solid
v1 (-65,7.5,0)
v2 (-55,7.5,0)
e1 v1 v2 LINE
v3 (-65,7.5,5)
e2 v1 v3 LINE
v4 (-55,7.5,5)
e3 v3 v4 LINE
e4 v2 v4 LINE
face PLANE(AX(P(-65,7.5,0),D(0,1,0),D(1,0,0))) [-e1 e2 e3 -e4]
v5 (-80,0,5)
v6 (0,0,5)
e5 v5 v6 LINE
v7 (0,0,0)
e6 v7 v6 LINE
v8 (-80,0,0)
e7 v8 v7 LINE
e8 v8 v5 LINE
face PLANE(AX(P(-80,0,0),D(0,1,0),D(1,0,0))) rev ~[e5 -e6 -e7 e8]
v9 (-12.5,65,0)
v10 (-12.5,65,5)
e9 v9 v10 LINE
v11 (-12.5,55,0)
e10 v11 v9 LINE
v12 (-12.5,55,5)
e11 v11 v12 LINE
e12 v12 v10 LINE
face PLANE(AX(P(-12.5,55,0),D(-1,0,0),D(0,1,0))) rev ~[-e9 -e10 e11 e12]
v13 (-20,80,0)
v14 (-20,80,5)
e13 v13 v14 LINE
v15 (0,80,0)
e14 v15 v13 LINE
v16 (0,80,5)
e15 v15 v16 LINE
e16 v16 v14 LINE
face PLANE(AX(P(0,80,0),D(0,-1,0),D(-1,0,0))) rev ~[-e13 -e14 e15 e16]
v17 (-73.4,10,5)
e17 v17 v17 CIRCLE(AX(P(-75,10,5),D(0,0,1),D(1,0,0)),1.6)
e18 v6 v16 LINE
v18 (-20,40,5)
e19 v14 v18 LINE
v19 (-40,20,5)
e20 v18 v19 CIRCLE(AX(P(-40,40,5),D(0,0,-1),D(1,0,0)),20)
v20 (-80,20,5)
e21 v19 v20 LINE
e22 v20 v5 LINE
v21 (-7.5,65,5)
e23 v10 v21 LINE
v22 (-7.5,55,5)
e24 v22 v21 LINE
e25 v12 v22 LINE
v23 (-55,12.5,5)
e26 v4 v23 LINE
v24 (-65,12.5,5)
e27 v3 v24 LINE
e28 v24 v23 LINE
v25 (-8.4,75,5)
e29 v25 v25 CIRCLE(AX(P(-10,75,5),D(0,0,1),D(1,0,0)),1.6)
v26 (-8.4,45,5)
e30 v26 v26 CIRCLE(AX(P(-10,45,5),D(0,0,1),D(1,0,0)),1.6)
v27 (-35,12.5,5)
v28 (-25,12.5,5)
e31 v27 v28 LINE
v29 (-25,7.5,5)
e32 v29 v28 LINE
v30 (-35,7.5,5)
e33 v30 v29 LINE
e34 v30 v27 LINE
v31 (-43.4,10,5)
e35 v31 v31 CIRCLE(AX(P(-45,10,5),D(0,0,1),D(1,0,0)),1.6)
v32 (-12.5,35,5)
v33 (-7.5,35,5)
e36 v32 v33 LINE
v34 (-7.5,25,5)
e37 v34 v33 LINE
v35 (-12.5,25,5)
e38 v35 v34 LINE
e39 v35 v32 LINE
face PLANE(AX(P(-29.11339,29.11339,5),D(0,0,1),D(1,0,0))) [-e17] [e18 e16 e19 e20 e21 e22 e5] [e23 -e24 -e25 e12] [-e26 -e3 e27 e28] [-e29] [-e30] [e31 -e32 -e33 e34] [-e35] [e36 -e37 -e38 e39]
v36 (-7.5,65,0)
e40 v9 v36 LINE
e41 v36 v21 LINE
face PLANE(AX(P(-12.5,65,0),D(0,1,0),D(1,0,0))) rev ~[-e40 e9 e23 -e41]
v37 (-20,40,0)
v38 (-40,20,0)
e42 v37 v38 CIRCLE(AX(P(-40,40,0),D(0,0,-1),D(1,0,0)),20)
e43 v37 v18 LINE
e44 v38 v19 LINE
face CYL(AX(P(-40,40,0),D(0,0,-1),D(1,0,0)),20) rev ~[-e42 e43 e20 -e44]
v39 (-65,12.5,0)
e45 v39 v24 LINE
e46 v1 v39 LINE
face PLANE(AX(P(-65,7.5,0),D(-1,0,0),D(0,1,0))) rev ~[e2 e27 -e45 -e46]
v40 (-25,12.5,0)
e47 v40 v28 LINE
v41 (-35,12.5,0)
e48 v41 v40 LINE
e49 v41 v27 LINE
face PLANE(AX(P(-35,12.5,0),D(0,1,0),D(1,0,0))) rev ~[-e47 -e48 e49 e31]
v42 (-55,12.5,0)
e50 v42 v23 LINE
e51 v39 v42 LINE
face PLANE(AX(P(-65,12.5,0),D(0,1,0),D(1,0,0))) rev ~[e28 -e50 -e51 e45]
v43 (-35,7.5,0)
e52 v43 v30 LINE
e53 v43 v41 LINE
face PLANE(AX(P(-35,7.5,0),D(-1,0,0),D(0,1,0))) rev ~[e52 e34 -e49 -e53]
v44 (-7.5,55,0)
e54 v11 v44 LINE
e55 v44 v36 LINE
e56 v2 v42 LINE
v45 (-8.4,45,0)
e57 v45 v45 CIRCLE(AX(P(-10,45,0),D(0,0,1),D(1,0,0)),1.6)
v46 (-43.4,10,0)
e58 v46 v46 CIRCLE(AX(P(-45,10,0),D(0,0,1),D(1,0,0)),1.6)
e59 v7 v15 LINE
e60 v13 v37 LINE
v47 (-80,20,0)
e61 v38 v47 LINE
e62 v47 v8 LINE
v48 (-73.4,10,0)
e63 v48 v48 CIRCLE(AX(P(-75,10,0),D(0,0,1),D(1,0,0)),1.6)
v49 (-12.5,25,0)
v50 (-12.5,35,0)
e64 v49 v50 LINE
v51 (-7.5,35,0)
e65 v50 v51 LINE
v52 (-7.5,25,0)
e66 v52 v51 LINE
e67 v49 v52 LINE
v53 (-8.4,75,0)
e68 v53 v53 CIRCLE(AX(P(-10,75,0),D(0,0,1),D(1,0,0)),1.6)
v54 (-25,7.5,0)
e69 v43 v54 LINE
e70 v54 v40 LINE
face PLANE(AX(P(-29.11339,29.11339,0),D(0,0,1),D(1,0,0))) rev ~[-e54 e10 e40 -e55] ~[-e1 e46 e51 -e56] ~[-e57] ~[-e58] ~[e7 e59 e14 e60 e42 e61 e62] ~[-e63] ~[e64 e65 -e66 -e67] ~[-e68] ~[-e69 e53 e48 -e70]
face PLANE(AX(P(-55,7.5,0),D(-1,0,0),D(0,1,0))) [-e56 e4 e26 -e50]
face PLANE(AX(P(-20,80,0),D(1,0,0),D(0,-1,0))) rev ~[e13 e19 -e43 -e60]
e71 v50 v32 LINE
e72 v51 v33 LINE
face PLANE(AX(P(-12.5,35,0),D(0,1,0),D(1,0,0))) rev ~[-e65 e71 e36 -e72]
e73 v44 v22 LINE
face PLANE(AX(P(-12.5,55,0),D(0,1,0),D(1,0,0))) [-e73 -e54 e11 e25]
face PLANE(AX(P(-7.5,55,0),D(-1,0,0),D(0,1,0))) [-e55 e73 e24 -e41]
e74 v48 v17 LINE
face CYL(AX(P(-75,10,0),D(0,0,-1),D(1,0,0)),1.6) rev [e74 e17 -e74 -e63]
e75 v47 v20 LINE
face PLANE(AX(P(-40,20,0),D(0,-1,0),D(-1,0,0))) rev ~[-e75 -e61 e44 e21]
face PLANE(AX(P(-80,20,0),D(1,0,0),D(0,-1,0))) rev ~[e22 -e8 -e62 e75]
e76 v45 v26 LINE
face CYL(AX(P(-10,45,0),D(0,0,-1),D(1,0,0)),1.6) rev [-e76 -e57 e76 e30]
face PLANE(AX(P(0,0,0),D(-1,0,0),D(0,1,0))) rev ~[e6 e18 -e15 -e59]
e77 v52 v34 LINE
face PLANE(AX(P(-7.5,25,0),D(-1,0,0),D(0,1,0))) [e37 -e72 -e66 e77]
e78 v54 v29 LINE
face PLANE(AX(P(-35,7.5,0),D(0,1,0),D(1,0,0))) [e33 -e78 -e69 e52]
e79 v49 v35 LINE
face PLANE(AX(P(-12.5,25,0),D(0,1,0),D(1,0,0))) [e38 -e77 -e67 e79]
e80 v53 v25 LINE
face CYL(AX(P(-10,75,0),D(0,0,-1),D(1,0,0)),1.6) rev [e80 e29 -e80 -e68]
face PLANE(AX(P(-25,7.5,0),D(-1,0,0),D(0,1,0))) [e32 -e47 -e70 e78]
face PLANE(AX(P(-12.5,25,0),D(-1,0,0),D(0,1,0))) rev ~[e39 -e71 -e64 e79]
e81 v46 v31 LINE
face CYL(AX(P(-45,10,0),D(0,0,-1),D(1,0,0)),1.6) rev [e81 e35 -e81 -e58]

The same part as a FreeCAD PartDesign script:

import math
import FreeCAD as App
import Part
import Sketcher
Q = App.Units.Quantity

doc = App.newDocument("Part")
body = doc.addObject("PartDesign::Body", "Body")

sketch1 = body.newObject("Sketcher::SketchObject", "Sketch")
sketch1.AttachmentSupport = (doc.getObject("XY_Plane"), [""])
sketch1.MapMode = "FlatFace"
sketch1.addGeometry(Part.LineSegment(App.Vector(-80, 0, 0), App.Vector(0, 0, 0)), False)
sketch1.addGeometry(Part.LineSegment(App.Vector(0, 0, 0), App.Vector(0, 80, 0)), False)
sketch1.addGeometry(Part.LineSegment(App.Vector(0, 80, 0), App.Vector(-20, 80, 0)), False)
sketch1.addGeometry(Part.LineSegment(App.Vector(-20, 80, 0), App.Vector(-20, 40, 0)), False)
sketch1.addGeometry(Part.ArcOfCircle(Part.Circle(App.Vector(-40, 40, 0), App.Vector(0, 0, 1), 20), math.radians(-90), math.radians(0)), False)
sketch1.addGeometry(Part.LineSegment(App.Vector(-40, 20, 0), App.Vector(-80, 20, 0)), False)
sketch1.addGeometry(Part.LineSegment(App.Vector(-80, 20, 0), App.Vector(-80, 0, 0)), False)
sketch1.addGeometry(Part.Circle(App.Vector(-75, 10, 0), App.Vector(0, 0, 1), 1.6), False)
sketch1.addGeometry(Part.LineSegment(App.Vector(-55, 7.5, 0), App.Vector(-65, 7.5, 0)), False)
sketch1.addGeometry(Part.LineSegment(App.Vector(-65, 7.5, 0), App.Vector(-65, 12.5, 0)), False)
sketch1.addGeometry(Part.LineSegment(App.Vector(-65, 12.5, 0), App.Vector(-55, 12.5, 0)), False)
sketch1.addGeometry(Part.LineSegment(App.Vector(-55, 12.5, 0), App.Vector(-55, 7.5, 0)), False)
sketch1.addGeometry(Part.Circle(App.Vector(-45, 10, 0), App.Vector(0, 0, 1), 1.6), False)
sketch1.addGeometry(Part.LineSegment(App.Vector(-25, 7.5, 0), App.Vector(-35, 7.5, 0)), False)
sketch1.addGeometry(Part.LineSegment(App.Vector(-35, 7.5, 0), App.Vector(-35, 12.5, 0)), False)
sketch1.addGeometry(Part.LineSegment(App.Vector(-35, 12.5, 0), App.Vector(-25, 12.5, 0)), False)
sketch1.addGeometry(Part.LineSegment(App.Vector(-25, 12.5, 0), App.Vector(-25, 7.5, 0)), False)
sketch1.addGeometry(Part.LineSegment(App.Vector(-7.5, 25, 0), App.Vector(-12.5, 25, 0)), False)
sketch1.addGeometry(Part.LineSegment(App.Vector(-12.5, 25, 0), App.Vector(-12.5, 35, 0)), False)
sketch1.addGeometry(Part.LineSegment(App.Vector(-12.5, 35, 0), App.Vector(-7.5, 35, 0)), False)
sketch1.addGeometry(Part.LineSegment(App.Vector(-7.5, 35, 0), App.Vector(-7.5, 25, 0)), False)
sketch1.addGeometry(Part.Circle(App.Vector(-10, 45, 0), App.Vector(0, 0, 1), 1.6), False)
sketch1.addGeometry(Part.LineSegment(App.Vector(-7.5, 55, 0), App.Vector(-12.5, 55, 0)), False)
sketch1.addGeometry(Part.LineSegment(App.Vector(-12.5, 55, 0), App.Vector(-12.5, 65, 0)), False)
sketch1.addGeometry(Part.LineSegment(App.Vector(-12.5, 65, 0), App.Vector(-7.5, 65, 0)), False)
sketch1.addGeometry(Part.LineSegment(App.Vector(-7.5, 65, 0), App.Vector(-7.5, 55, 0)), False)
sketch1.addGeometry(Part.Circle(App.Vector(-10, 75, 0), App.Vector(0, 0, 1), 1.6), False)
sketch1.addConstraint(Sketcher.Constraint("Coincident", 0, 2, 1, 1))
sketch1.addConstraint(Sketcher.Constraint("Coincident", 1, 2, 2, 1))
sketch1.addConstraint(Sketcher.Constraint("Coincident", 2, 2, 3, 1))
sketch1.addConstraint(Sketcher.Constraint("Tangent", 3, 2, 4, 2))
sketch1.addConstraint(Sketcher.Constraint("Tangent", 4, 1, 5, 1))
sketch1.addConstraint(Sketcher.Constraint("Coincident", 5, 2, 6, 1))
sketch1.addConstraint(Sketcher.Constraint("Coincident", 6, 2, 0, 1))
sketch1.addConstraint(Sketcher.Constraint("Coincident", 8, 2, 9, 1))
sketch1.addConstraint(Sketcher.Constraint("Coincident", 9, 2, 10, 1))
sketch1.addConstraint(Sketcher.Constraint("Coincident", 10, 2, 11, 1))
sketch1.addConstraint(Sketcher.Constraint("Coincident", 11, 2, 8, 1))
sketch1.addConstraint(Sketcher.Constraint("Coincident", 13, 2, 14, 1))
sketch1.addConstraint(Sketcher.Constraint("Coincident", 14, 2, 15, 1))
sketch1.addConstraint(Sketcher.Constraint("Coincident", 15, 2, 16, 1))
sketch1.addConstraint(Sketcher.Constraint("Coincident", 16, 2, 13, 1))
sketch1.addConstraint(Sketcher.Constraint("Coincident", 17, 2, 18, 1))
sketch1.addConstraint(Sketcher.Constraint("Coincident", 18, 2, 19, 1))
sketch1.addConstraint(Sketcher.Constraint("Coincident", 19, 2, 20, 1))
sketch1.addConstraint(Sketcher.Constraint("Coincident", 20, 2, 17, 1))
sketch1.addConstraint(Sketcher.Constraint("Coincident", 22, 2, 23, 1))
sketch1.addConstraint(Sketcher.Constraint("Coincident", 23, 2, 24, 1))
sketch1.addConstraint(Sketcher.Constraint("Coincident", 24, 2, 25, 1))
sketch1.addConstraint(Sketcher.Constraint("Coincident", 25, 2, 22, 1))
sketch1.addConstraint(Sketcher.Constraint("Horizontal", 0))
sketch1.addConstraint(Sketcher.Constraint("Vertical", 1))
sketch1.addConstraint(Sketcher.Constraint("Horizontal", 2))
sketch1.addConstraint(Sketcher.Constraint("Vertical", 3))
sketch1.addConstraint(Sketcher.Constraint("Horizontal", 5))
sketch1.addConstraint(Sketcher.Constraint("Vertical", 6))
sketch1.addConstraint(Sketcher.Constraint("Horizontal", 8))
sketch1.addConstraint(Sketcher.Constraint("Vertical", 9))
sketch1.addConstraint(Sketcher.Constraint("Horizontal", 10))
sketch1.addConstraint(Sketcher.Constraint("Vertical", 11))
sketch1.addConstraint(Sketcher.Constraint("Horizontal", 13))
sketch1.addConstraint(Sketcher.Constraint("Vertical", 14))
sketch1.addConstraint(Sketcher.Constraint("Horizontal", 15))
sketch1.addConstraint(Sketcher.Constraint("Vertical", 16))
sketch1.addConstraint(Sketcher.Constraint("Horizontal", 17))
sketch1.addConstraint(Sketcher.Constraint("Vertical", 18))
sketch1.addConstraint(Sketcher.Constraint("Horizontal", 19))
sketch1.addConstraint(Sketcher.Constraint("Vertical", 20))
sketch1.addConstraint(Sketcher.Constraint("Horizontal", 22))
sketch1.addConstraint(Sketcher.Constraint("Vertical", 23))
sketch1.addConstraint(Sketcher.Constraint("Horizontal", 24))
sketch1.addConstraint(Sketcher.Constraint("Vertical", 25))
sketch1.addConstraint(Sketcher.Constraint("Coincident", 0, 2, -1, 1))
sketch1.addConstraint(Sketcher.Constraint("Equal", 7, 12))
sketch1.addConstraint(Sketcher.Constraint("Equal", 12, 21))
sketch1.addConstraint(Sketcher.Constraint("Equal", 21, 26))
sketch1.addConstraint(Sketcher.Constraint("Horizontal", 7, 3, 12, 3))
sketch1.addConstraint(Sketcher.Constraint("Horizontal", 11, 2, 13, 2))
sketch1.addConstraint(Sketcher.Constraint("Horizontal", 10, 2, 14, 2))
sketch1.addConstraint(Sketcher.Constraint("Vertical", 21, 3, 26, 3))
sketch1.addConstraint(Sketcher.Constraint("Vertical", 18, 2, 22, 2))
sketch1.addConstraint(Sketcher.Constraint("Vertical", 20, 2, 24, 2))
sketch1.addConstraint(Sketcher.Constraint("Equal", 10, 13))
sketch1.addConstraint(Sketcher.Constraint("Equal", 0, 1))
sketch1.addConstraint(Sketcher.Constraint("Equal", 5, 3))
sketch1.addConstraint(Sketcher.Constraint("Equal", 24, 9))
sketch1.addConstraint(Sketcher.Constraint("Equal", 15, 18))
sketch1.addConstraint(Sketcher.Constraint("Equal", 20, 23))
sketch1.addConstraint(Sketcher.Constraint("Radius", 4, Q("20 mm")))
sketch1.addConstraint(Sketcher.Constraint("Diameter", 7, Q("3.2 mm")))
sketch1.addConstraint(Sketcher.Constraint("DistanceX", 0, 1, 0, 2, Q("80 mm")))
sketch1.addConstraint(Sketcher.Constraint("DistanceX", 2, 2, 2, 1, Q("20 mm")))
sketch1.addConstraint(Sketcher.Constraint("DistanceX", 8, 2, 8, 1, Q("10 mm")))
sketch1.addConstraint(Sketcher.Constraint("DistanceX", 17, 2, 17, 1, Q("5 mm")))
sketch1.addConstraint(Sketcher.Constraint("DistanceX", 7, 3, -1, 1, Q("75 mm")))
sketch1.addConstraint(Sketcher.Constraint("DistanceY", -1, 1, 7, 3, Q("10 mm")))
sketch1.addConstraint(Sketcher.Constraint("DistanceX", 12, 3, -1, 1, Q("45 mm")))
sketch1.addConstraint(Sketcher.Constraint("DistanceX", 21, 3, -1, 1, Q("10 mm")))
sketch1.addConstraint(Sketcher.Constraint("DistanceY", -1, 1, 21, 3, Q("45 mm")))
sketch1.addConstraint(Sketcher.Constraint("DistanceY", -1, 1, 26, 3, Q("75 mm")))
sketch1.addConstraint(Sketcher.Constraint("DistanceX", 8, 2, -1, 1, Q("65 mm")))
sketch1.addConstraint(Sketcher.Constraint("DistanceX", 13, 2, -1, 1, Q("35 mm")))
sketch1.addConstraint(Sketcher.Constraint("DistanceY", -1, 1, 17, 2, Q("25 mm")))
sketch1.addConstraint(Sketcher.Constraint("DistanceY", -1, 1, 22, 2, Q("55 mm")))
sketch1.addConstraint(Sketcher.Constraint("DistanceY", -1, 1, 8, 2, Q("7.5 mm")))
sketch1.addConstraint(Sketcher.Constraint("DistanceX", 17, 2, -1, 1, Q("12.5 mm")))
pad1 = body.newObject("PartDesign::Pad", "Pad")
pad1.Profile = sketch1
pad1.Length = 5

doc.recompute()
